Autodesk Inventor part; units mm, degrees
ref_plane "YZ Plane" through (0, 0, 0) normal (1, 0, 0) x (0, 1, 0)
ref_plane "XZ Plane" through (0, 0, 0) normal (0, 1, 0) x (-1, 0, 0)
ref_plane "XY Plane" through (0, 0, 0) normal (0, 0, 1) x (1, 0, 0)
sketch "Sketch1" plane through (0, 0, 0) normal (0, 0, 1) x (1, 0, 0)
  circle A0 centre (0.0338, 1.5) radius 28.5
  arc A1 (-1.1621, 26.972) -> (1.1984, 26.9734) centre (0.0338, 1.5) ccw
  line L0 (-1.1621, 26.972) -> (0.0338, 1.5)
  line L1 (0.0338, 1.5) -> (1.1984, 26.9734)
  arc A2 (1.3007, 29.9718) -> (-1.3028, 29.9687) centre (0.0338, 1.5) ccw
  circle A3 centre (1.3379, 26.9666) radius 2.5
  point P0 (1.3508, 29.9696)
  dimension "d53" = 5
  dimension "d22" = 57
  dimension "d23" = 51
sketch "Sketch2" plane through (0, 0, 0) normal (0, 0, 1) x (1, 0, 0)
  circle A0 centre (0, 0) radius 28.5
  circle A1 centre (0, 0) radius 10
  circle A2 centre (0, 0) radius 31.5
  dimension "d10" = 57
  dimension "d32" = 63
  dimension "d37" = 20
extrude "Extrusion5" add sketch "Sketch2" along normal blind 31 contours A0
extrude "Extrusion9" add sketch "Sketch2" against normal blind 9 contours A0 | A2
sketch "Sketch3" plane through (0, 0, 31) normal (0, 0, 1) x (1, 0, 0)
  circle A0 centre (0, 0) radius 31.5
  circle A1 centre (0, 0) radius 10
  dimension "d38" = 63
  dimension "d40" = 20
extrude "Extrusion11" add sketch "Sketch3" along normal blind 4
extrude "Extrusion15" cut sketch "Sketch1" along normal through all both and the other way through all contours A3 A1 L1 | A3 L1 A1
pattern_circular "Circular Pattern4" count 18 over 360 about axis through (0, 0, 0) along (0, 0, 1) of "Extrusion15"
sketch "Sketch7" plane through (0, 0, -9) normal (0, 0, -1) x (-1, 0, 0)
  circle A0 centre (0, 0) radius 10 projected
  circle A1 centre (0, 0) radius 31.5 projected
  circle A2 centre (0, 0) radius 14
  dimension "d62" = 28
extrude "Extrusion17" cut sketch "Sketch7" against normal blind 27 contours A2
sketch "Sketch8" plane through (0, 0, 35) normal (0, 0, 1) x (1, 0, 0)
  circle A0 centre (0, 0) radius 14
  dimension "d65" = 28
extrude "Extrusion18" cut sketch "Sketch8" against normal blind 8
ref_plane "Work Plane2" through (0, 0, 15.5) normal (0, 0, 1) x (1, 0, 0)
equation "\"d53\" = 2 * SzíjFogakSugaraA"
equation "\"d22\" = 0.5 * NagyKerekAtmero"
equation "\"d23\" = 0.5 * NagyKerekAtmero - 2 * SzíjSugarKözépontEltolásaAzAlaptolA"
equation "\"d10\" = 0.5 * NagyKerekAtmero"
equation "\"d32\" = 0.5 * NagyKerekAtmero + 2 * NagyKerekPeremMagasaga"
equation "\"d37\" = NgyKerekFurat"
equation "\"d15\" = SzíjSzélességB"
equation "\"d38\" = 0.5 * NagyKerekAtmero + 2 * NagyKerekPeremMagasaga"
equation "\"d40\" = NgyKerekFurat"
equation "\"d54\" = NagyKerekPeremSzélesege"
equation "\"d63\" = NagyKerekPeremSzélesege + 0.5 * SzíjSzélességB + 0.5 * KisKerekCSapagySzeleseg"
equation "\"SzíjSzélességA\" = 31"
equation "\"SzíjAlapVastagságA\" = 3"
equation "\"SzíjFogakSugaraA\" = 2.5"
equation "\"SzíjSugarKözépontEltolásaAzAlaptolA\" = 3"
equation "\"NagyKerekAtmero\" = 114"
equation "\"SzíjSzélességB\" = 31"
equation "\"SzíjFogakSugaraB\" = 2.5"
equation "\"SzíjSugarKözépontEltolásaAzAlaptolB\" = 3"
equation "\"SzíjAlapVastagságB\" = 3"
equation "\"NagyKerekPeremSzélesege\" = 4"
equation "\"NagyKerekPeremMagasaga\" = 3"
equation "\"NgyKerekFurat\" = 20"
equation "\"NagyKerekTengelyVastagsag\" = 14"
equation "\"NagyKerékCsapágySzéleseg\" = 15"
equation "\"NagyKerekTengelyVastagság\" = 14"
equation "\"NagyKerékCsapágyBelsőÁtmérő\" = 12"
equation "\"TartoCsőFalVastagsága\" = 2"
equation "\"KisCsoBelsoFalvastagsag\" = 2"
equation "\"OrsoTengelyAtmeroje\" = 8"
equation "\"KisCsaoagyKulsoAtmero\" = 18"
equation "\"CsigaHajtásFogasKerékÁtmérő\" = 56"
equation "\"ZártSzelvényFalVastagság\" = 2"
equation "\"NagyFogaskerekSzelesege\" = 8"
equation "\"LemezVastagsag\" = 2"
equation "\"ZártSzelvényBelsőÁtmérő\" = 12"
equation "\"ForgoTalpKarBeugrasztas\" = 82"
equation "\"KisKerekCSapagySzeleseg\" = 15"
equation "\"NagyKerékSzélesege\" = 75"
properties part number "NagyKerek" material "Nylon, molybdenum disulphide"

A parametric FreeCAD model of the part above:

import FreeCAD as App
import Part
import Sketcher

V = App.Vector
Q = App.Units.Quantity

doc = App.newDocument("Part")
body = doc.addObject("PartDesign::Body", "Body")

# Sketch on XY plane
sketch1 = body.newObject("Sketcher::SketchObject", "Sketch")
sketch1.AttachmentSupport = (doc.getObject("XY_Plane"), [""])
sketch1.MapMode = "FlatFace"
sketch1.addGeometry(Part.Circle(V(0, 0, 0), V(0, 0, 1), 28), False)
sketch1.addGeometry(Part.Circle(V(0, 0, 0), V(0, 0, 1), 10), False)
sketch1.addConstraint(Sketcher.Constraint("Coincident", 0, 3, -1, 1))
sketch1.addConstraint(Sketcher.Constraint("Coincident", 1, 3, -1, 1))
sketch1.addConstraint(Sketcher.Constraint("Diameter", 0, Q("57 mm")))
sketch1.addConstraint(Sketcher.Constraint("Diameter", 1, Q("20 mm")))
pad1 = body.newObject("PartDesign::Pad", "Pad")
pad1.Profile = sketch1
pad1.Length = 31

# Sketch on XY plane
sketch2 = body.newObject("Sketcher::SketchObject", "Sketch001")
sketch2.AttachmentSupport = (doc.getObject("XY_Plane"), [""])
sketch2.MapMode = "FlatFace"
sketch2.addGeometry(Part.Circle(V(0, 0, 0), V(0, 0, 1), 32), False)
sketch2.addGeometry(Part.Circle(V(0, 0, 0), V(0, 0, 1), 10), False)
sketch2.addConstraint(Sketcher.Constraint("Coincident", 0, 3, -1, 1))
sketch2.addConstraint(Sketcher.Constraint("Coincident", 1, 3, -1, 1))
sketch2.addConstraint(Sketcher.Constraint("Diameter", 0, Q("63 mm")))
sketch2.addConstraint(Sketcher.Constraint("Diameter", 1, Q("20 mm")))
pad2 = body.newObject("PartDesign::Pad", "Pad001")
pad2.Profile = sketch2
pad2.Length = 9
pad2.Reversed = True

# Sketch on XY plane
sketch3 = body.newObject("Sketcher::SketchObject", "Sketch002")
sketch3.AttachmentSupport = (doc.getObject("XY_Plane"), [""])
sketch3.MapMode = "FlatFace"
sketch3.AttachmentOffset = App.Placement(V(0, 0, 31), App.Rotation())
sketch3.addGeometry(Part.Circle(V(0, 0, 0), V(0, 0, 1), 32), False)
sketch3.addGeometry(Part.Circle(V(0, 0, 0), V(0, 0, 1), 10), False)
sketch3.addConstraint(Sketcher.Constraint("Coincident", 0, 3, -1, 1))
sketch3.addConstraint(Sketcher.Constraint("Coincident", 1, 3, -1, 1))
sketch3.addConstraint(Sketcher.Constraint("Diameter", 0, Q("63 mm")))
sketch3.addConstraint(Sketcher.Constraint("Diameter", 1, Q("20 mm")))
pad3 = body.newObject("PartDesign::Pad", "Pad002")
pad3.Profile = sketch3
pad3.Length = 4

# Sketch on XY plane
sketch4 = body.newObject("Sketcher::SketchObject", "Sketch003")
sketch4.AttachmentSupport = (doc.getObject("XY_Plane"), [""])
sketch4.MapMode = "FlatFace"
sketch4.addGeometry(Part.Circle(V(1.3, 27, 0), V(0, 0, 1), 2.5), False)
sketch4.addConstraint(Sketcher.Constraint("Diameter", 0, Q("5 mm")))
sketch4.addConstraint(Sketcher.Constraint("DistanceX", -1, 1, 0, 3, Q("1.338 mm")))
sketch4.addConstraint(Sketcher.Constraint("DistanceY", -1, 1, 0, 3, Q("26.9666 mm")))
pocket1 = body.newObject("PartDesign::Pocket", "Pocket")
pocket1.Profile = sketch4
pocket1.Type = "ThroughAll"
pocket1.Midplane = True
doc.recompute()

polarpattern = body.newObject("PartDesign::PolarPattern", "PolarPattern")
polarpattern.Originals = [pocket1]
polarpattern.Axis = (doc.getObject("Z_Axis"), [""])
polarpattern.Angle = 360
polarpattern.Occurrences = 18
body.Tip = polarpattern

# Sketch on XY plane
sketch5 = body.newObject("Sketcher::SketchObject", "Sketch004")
sketch5.AttachmentSupport = (doc.getObject("XY_Plane"), [""])
sketch5.MapMode = "FlatFace"
sketch5.AttachmentOffset = App.Placement(V(0, 0, -9), App.Rotation())
sketch5.addGeometry(Part.Circle(V(0, 0, 0), V(0, 0, 1), 14), False)
sketch5.addGeometry(Part.Circle(V(0, 0, 0), V(0, 0, 1), 10), False)
sketch5.addConstraint(Sketcher.Constraint("Coincident", 0, 3, -1, 1))
sketch5.addConstraint(Sketcher.Constraint("Coincident", 1, 3, -1, 1))
sketch5.addConstraint(Sketcher.Constraint("Diameter", 0, Q("28 mm")))
sketch5.addConstraint(Sketcher.Constraint("Diameter", 1, Q("20 mm")))
pocket2 = body.newObject("PartDesign::Pocket", "Pocket001")
pocket2.Profile = sketch5
pocket2.Length = 27
pocket2.Reversed = True

# Sketch on XY plane
sketch6 = body.newObject("Sketcher::SketchObject", "Sketch005")
sketch6.AttachmentSupport = (doc.getObject("XY_Plane"), [""])
sketch6.MapMode = "FlatFace"
sketch6.AttachmentOffset = App.Placement(V(0, 0, 35), App.Rotation())
sketch6.addGeometry(Part.Circle(V(0, 0, 0), V(0, 0, 1), 14), False)
sketch6.addConstraint(Sketcher.Constraint("Coincident", 0, 3, -1, 1))
sketch6.addConstraint(Sketcher.Constraint("Diameter", 0, Q("28 mm")))
pocket3 = body.newObject("PartDesign::Pocket", "Pocket002")
pocket3.Profile = sketch6
pocket3.Length = 8

doc.recompute()
